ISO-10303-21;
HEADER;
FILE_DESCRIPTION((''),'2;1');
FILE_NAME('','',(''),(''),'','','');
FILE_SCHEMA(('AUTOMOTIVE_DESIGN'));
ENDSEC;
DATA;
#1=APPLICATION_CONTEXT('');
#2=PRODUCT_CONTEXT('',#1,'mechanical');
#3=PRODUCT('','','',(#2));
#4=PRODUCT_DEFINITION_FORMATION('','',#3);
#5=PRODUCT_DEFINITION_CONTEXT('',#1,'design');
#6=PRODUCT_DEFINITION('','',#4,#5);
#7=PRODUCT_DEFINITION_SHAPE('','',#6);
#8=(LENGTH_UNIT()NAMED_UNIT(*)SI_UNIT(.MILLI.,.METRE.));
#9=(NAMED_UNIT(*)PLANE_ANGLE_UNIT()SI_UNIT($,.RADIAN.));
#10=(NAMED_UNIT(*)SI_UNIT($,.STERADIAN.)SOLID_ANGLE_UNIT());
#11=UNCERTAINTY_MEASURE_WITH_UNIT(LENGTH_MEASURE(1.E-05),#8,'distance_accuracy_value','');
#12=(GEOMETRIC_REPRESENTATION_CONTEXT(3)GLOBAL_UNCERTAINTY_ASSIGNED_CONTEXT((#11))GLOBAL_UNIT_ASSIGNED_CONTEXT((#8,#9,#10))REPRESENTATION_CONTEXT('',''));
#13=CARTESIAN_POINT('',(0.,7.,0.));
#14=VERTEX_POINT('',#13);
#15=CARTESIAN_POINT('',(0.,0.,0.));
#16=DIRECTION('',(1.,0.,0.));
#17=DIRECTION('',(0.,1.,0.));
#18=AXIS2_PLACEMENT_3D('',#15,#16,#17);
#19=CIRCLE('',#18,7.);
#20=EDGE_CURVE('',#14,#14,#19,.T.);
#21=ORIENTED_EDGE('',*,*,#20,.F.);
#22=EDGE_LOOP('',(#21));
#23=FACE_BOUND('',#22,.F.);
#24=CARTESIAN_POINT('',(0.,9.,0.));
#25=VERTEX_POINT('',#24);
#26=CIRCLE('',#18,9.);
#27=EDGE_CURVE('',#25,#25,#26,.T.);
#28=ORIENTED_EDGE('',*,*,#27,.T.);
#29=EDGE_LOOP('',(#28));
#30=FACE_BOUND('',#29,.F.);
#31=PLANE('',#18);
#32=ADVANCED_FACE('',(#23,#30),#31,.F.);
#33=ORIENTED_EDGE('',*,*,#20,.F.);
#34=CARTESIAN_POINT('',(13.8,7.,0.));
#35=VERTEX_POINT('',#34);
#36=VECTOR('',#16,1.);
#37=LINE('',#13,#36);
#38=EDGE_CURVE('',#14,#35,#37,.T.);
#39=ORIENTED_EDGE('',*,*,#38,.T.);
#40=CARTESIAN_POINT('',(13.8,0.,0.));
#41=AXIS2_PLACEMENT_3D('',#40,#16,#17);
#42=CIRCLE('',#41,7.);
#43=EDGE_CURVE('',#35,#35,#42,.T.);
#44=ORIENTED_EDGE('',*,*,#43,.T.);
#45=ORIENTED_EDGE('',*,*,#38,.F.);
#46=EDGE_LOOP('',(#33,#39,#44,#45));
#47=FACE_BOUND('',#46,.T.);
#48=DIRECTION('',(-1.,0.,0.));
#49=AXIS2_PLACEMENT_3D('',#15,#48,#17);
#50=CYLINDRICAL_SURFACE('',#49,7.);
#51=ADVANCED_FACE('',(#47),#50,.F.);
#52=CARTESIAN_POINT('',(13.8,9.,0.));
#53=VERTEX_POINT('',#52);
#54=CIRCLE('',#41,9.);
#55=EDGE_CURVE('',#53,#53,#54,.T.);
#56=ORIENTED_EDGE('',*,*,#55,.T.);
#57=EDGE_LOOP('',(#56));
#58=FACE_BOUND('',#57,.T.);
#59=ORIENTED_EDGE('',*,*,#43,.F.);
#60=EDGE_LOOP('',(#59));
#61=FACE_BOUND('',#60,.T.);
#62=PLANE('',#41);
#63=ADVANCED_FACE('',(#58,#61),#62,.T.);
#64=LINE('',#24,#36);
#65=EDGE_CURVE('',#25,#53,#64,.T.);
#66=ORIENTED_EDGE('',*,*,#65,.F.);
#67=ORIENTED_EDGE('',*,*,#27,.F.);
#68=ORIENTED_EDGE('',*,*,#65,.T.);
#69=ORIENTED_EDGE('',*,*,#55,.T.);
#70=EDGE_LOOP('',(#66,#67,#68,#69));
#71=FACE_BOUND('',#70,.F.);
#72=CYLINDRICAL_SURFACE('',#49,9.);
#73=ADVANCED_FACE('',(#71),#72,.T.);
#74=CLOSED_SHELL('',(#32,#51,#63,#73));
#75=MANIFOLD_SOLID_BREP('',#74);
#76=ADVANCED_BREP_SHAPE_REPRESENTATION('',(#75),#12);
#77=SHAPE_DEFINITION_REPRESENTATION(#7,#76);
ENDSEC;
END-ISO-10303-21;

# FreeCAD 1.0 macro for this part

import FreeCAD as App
import Part
import Sketcher

doc = App.newDocument("Part")
body = doc.addObject("PartDesign::Body", "Body")

# Sketch on YZ plane
sketch1 = body.newObject("Sketcher::SketchObject", "Sketch")
sketch1.AttachmentSupport = (doc.getObject("YZ_Plane"), [""])
sketch1.MapMode = "FlatFace"
sketch1.addGeometry(Part.Circle(App.Vector(0, 0, 0), App.Vector(0, 0, 1), 9), False)
sketch1.addGeometry(Part.Circle(App.Vector(0, 0, 0), App.Vector(0, 0, 1), 7), False)
sketch1.addConstraint(Sketcher.Constraint("Coincident", 0, 3, -1, 1))
sketch1.addConstraint(Sketcher.Constraint("Coincident", 1, 3, -1, 1))
sketch1.addConstraint(Sketcher.Constraint("Diameter", 0, 18.0))
sketch1.addConstraint(Sketcher.Constraint("Diameter", 1, 14.0))
pad1 = body.newObject("PartDesign::Pad", "Pad")
pad1.Profile = sketch1
pad1.Length = 13.8

doc.recompute()
